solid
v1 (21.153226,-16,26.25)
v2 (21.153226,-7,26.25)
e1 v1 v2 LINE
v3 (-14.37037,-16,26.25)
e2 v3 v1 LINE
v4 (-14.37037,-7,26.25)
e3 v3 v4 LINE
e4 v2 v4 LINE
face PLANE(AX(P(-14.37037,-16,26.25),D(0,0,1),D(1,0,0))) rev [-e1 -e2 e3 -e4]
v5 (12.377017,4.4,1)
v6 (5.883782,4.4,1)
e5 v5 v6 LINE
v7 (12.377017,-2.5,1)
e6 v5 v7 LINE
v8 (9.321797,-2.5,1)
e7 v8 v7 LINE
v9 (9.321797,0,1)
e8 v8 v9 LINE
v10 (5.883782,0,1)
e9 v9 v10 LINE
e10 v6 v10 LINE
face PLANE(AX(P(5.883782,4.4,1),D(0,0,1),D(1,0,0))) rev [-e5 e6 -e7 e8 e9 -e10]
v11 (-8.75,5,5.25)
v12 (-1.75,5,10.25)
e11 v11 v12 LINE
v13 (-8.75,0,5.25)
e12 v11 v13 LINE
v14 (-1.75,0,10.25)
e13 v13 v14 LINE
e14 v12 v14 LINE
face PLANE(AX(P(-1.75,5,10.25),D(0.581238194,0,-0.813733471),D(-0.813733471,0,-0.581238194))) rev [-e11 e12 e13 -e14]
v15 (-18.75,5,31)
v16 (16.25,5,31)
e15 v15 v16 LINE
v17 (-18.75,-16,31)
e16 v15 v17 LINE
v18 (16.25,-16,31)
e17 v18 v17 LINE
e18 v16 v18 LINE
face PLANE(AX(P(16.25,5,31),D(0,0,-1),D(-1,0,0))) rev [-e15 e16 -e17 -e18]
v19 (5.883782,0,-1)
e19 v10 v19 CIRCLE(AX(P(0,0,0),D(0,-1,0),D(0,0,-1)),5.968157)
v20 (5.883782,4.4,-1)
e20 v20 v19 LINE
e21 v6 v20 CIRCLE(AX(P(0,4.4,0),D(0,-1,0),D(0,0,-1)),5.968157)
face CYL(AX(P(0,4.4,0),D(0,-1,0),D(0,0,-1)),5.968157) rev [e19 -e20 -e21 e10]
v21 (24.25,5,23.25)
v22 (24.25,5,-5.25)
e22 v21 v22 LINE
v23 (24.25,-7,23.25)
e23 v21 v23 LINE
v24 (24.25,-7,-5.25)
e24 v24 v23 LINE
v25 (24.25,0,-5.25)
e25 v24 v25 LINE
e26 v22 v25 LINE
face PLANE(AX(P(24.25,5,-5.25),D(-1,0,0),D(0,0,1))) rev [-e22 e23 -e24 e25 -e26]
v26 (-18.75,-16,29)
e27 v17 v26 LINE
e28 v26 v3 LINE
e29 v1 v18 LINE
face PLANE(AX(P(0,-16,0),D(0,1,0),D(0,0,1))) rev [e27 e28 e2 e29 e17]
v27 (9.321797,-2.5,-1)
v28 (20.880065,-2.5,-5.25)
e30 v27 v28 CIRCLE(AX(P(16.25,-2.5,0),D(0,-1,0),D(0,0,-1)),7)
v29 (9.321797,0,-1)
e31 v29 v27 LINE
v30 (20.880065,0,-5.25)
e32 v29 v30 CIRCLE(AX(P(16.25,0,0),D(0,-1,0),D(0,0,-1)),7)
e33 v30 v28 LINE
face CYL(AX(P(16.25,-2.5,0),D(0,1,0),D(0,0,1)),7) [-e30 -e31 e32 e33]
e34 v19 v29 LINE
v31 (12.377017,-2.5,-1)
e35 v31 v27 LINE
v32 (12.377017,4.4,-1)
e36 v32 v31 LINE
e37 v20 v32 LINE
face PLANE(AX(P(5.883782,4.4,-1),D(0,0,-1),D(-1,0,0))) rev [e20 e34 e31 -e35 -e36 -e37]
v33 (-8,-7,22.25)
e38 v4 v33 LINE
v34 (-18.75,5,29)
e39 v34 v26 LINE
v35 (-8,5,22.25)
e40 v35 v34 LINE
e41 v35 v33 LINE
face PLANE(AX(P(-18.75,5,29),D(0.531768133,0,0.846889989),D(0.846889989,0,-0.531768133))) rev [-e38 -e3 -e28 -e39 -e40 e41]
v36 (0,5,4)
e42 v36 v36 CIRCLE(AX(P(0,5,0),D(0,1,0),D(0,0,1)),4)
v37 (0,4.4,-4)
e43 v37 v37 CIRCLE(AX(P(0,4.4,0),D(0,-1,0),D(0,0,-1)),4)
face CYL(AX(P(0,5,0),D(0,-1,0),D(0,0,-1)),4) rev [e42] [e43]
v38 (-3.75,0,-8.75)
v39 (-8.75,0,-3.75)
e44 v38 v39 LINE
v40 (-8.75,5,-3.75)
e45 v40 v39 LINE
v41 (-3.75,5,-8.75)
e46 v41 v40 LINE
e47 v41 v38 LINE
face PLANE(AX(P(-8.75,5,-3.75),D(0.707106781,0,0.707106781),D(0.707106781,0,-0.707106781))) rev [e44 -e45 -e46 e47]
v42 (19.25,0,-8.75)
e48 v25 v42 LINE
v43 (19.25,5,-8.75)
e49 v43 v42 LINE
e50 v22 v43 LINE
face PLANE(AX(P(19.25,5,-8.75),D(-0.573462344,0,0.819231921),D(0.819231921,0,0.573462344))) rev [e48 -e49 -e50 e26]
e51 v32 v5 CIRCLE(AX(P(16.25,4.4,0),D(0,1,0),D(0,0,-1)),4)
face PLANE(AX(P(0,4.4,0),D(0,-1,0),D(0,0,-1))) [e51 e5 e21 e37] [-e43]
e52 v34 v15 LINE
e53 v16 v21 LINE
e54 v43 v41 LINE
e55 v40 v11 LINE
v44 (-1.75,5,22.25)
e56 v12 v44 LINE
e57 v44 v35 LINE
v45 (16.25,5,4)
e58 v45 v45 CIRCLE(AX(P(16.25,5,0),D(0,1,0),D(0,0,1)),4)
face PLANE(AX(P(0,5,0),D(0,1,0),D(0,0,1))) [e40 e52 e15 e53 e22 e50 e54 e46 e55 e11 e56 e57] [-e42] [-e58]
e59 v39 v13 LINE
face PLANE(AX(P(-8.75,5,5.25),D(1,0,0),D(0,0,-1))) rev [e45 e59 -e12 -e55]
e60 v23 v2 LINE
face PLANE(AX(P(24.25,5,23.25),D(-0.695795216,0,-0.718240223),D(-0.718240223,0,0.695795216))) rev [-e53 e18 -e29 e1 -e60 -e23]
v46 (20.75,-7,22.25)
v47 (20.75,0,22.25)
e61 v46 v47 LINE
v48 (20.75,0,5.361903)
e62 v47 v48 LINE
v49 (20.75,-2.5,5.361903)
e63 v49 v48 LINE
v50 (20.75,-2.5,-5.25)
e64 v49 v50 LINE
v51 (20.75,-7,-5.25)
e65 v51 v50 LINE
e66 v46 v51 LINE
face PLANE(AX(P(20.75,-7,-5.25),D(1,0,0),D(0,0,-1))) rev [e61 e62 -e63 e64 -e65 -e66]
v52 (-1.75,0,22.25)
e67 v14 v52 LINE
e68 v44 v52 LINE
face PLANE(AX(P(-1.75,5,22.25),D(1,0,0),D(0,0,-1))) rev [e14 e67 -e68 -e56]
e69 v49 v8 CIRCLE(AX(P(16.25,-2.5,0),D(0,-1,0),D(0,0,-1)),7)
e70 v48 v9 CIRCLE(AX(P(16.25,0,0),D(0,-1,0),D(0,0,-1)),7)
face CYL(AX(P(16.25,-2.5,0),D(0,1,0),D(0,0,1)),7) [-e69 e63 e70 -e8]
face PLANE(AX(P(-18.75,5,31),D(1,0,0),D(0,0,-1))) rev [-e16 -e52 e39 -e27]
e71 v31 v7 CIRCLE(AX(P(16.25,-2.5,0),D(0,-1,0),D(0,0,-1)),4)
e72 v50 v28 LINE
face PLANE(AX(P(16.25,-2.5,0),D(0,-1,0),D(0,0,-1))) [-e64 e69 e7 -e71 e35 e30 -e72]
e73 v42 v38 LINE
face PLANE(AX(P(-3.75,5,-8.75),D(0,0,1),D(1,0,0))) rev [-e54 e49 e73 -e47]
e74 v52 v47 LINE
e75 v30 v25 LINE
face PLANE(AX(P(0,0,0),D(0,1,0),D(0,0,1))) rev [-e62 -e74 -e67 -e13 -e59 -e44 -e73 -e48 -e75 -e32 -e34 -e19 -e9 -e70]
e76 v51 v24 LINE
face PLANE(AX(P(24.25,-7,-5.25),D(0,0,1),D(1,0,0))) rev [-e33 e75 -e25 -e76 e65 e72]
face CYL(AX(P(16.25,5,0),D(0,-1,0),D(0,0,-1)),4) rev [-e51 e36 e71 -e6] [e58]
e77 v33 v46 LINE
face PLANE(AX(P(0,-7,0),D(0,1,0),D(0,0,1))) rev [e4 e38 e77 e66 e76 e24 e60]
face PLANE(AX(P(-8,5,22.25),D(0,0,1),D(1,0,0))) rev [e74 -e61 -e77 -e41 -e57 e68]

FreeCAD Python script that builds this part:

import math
import FreeCAD as App
import Part
import Sketcher
from FreeCAD import Vector
Q = App.Units.Quantity

doc = App.newDocument("Part")
body = doc.addObject("PartDesign::Body", "Body")

# Sketch on XZ plane
sketch1 = body.newObject("Sketcher::SketchObject", "Sketch")
sketch1.AttachmentSupport = (doc.getObject("XZ_Plane"), [""])
sketch1.MapMode = "FlatFace"
sketch1.addGeometry([
    Part.LineSegment(Vector(19.2, -8.8, 0), Vector(-3.8, -8.8, 0)),  # 0
    Part.LineSegment(Vector(-3.8, -8.8, 0), Vector(-8.8, -3.8, 0)),  # 1
    Part.LineSegment(Vector(-8.8, -3.8, 0), Vector(-8.8, 5.2, 0)),  # 2
    Part.LineSegment(Vector(-8.8, 5.2, 0), Vector(-1.8, 10.2, 0)),  # 3
    Part.LineSegment(Vector(-1.8, 10.2, 0), Vector(-1.8, 22.2, 0)),  # 4
    Part.LineSegment(Vector(-1.8, 22.2, 0), Vector(-8, 22.2, 0)),  # 5
    Part.LineSegment(Vector(-8, 22.2, 0), Vector(-18.8, 29, 0)),  # 6
    Part.LineSegment(Vector(-18.8, 29, 0), Vector(-18.8, 31, 0)),  # 7
    Part.LineSegment(Vector(-18.8, 31, 0), Vector(16.2, 31, 0)),  # 8
    Part.LineSegment(Vector(16.2, 31, 0), Vector(24.2, 23.2, 0)),  # 9
    Part.LineSegment(Vector(24.2, 23.2, 0), Vector(24.2, -5.2, 0)),  # 10
    Part.LineSegment(Vector(24.2, -5.2, 0), Vector(19.2, -8.8, 0)),  # 11
    Part.Circle(Vector(16.2, 0, 0), Vector(0, 0, 1), 4),  # 12
    Part.Circle(Vector(0, 0, 0), Vector(0, 0, 1), 4),  # 13
], False)
sketch1.addConstraint([
    Sketcher.Constraint("Coincident", 0, 2, 1, 1),
    Sketcher.Constraint("Coincident", 1, 2, 2, 1),
    Sketcher.Constraint("Coincident", 2, 2, 3, 1),
    Sketcher.Constraint("Coincident", 3, 2, 4, 1),
    Sketcher.Constraint("Coincident", 4, 2, 5, 1),
    Sketcher.Constraint("Coincident", 5, 2, 6, 1),
    Sketcher.Constraint("Coincident", 6, 2, 7, 1),
    Sketcher.Constraint("Coincident", 7, 2, 8, 1),
    Sketcher.Constraint("Coincident", 8, 2, 9, 1),
    Sketcher.Constraint("Coincident", 9, 2, 10, 1),
    Sketcher.Constraint("Coincident", 10, 2, 11, 1),
    Sketcher.Constraint("Coincident", 11, 2, 0, 1),
    Sketcher.Constraint("Horizontal", 0),
    Sketcher.Constraint("Vertical", 2),
    Sketcher.Constraint("Vertical", 4),
    Sketcher.Constraint("Horizontal", 5),
    Sketcher.Constraint("Vertical", 7),
    Sketcher.Constraint("Horizontal", 8),
    Sketcher.Constraint("Vertical", 10),
    Sketcher.Constraint("Coincident", 13, 3, -1, 1),
    Sketcher.Constraint("Equal", 12, 13),
    Sketcher.Constraint("PointOnObject", 12, 3, -1),
    Sketcher.Constraint("Vertical", 12, 3, 8, 2),
    Sketcher.Constraint("Diameter", 12, 8.0),
    Sketcher.Constraint("DistanceX", 0, 2, 0, 1, 23.0),
    Sketcher.Constraint("DistanceX", 8, 1, 8, 2, 35.0),
    Sketcher.Constraint("DistanceY", 2, 1, 2, 2, 9.0),
    Sketcher.Constraint("DistanceY", 4, 1, 4, 2, 12.0),
    Sketcher.Constraint("DistanceY", 7, 1, 7, 2, 2.0),
    Sketcher.Constraint("Angle", 1, Q("135 deg")),
    Sketcher.Constraint("DistanceY", 10, 2, 10, 1, 28.5),
    Sketcher.Constraint("DistanceX", 5, 2, -1, 1, 8.0),
    Sketcher.Constraint("DistanceY", -1, 1, 6, 2, 29.0),
    Sketcher.Constraint("DistanceX", 0, 2, 12, 3, 20.0),
    Sketcher.Constraint("DistanceX", 1, 2, 0, 2, 5.0),
    Sketcher.Constraint("DistanceX", 2, 2, 3, 2, 7.0),
    Sketcher.Constraint("DistanceY", 2, 2, 3, 2, 5.0),
    Sketcher.Constraint("DistanceX", 8, 2, 9, 2, 8.0),
    Sketcher.Constraint("DistanceY", 4, 2, 9, 2, 1.0),
    Sketcher.Constraint("DistanceX", 5, 2, 5, 1, 6.25),
    Sketcher.Constraint("DistanceY", 0, 2, -1, 1, 8.75),
])
pad1 = body.newObject("PartDesign::Pad", "Pad")
pad1.Profile = sketch1
pad1.Length = 5
pad1.Reversed = True

# Sketch on XZ plane
sketch2 = body.newObject("Sketcher::SketchObject", "Sketch001")
sketch2.AttachmentSupport = (doc.getObject("XZ_Plane"), [""])
sketch2.MapMode = "FlatFace"
sketch2.addGeometry([
    Part.LineSegment(Vector(24.2, -5.2, 0), Vector(24.2, 23.2, 0)),  # 0
    Part.LineSegment(Vector(24.2, 23.2, 0), Vector(21.2, 26.2, 0)),  # 1
    Part.LineSegment(Vector(21.2, 26.2, 0), Vector(-14.4, 26.2, 0)),  # 2
    Part.LineSegment(Vector(-14.4, 26.2, 0), Vector(-8, 22.2, 0)),  # 3
    Part.LineSegment(Vector(-8, 22.2, 0), Vector(20.8, 22.2, 0)),  # 4
    Part.LineSegment(Vector(20.8, 22.2, 0), Vector(20.8, -5.2, 0)),  # 5
    Part.LineSegment(Vector(20.8, -5.2, 0), Vector(24.2, -5.2, 0)),  # 6
], False)
sketch2.addConstraint([
    Sketcher.Constraint("Coincident", 0, 2, 1, 1),
    Sketcher.Constraint("Coincident", 1, 2, 2, 1),
    Sketcher.Constraint("Coincident", 2, 2, 3, 1),
    Sketcher.Constraint("Coincident", 3, 2, 4, 1),
    Sketcher.Constraint("Coincident", 4, 2, 5, 1),
    Sketcher.Constraint("Coincident", 5, 2, 6, 1),
    Sketcher.Constraint("Coincident", 6, 2, 0, 1),
    Sketcher.Constraint("Vertical", 0),
    Sketcher.Constraint("Horizontal", 2),
    Sketcher.Constraint("Horizontal", 4),
    Sketcher.Constraint("Vertical", 5),
    Sketcher.Constraint("Horizontal", 6),
    Sketcher.Constraint("DistanceX", 6, 1, 6, 2, 3.5),
    Sketcher.Constraint("DistanceY", 0, 1, 0, 2, 28.5),
    Sketcher.Constraint("DistanceY", 5, 2, 5, 1, 27.5),
    Sketcher.Constraint("DistanceX", 3, 2, -1, 1, 8.0),
    Sketcher.Constraint("DistanceY", 0, 2, 1, 2, 3.0),
    Sketcher.Constraint("DistanceX", 4, 1, 4, 2, 28.75),
    Sketcher.Constraint("DistanceY", -1, 1, 0, 2, 23.25),
    Sketcher.Constraint("DistanceX", 2, 2, 2, 1, 35.523596),
    Sketcher.Constraint("DistanceX", 2, 2, -1, 1, 14.37037),
])
pad2 = body.newObject("PartDesign::Pad", "Pad001")
pad2.Profile = sketch2
pad2.Length = 7

# Sketch on XZ plane
sketch3 = body.newObject("Sketcher::SketchObject", "Sketch002")
sketch3.AttachmentSupport = (doc.getObject("XZ_Plane"), [""])
sketch3.MapMode = "FlatFace"
sketch3.addGeometry([
    Part.LineSegment(Vector(-14.4, 26.2, 0), Vector(21.2, 26.2, 0)),  # 0
    Part.LineSegment(Vector(21.2, 26.2, 0), Vector(16.2, 31, 0)),  # 1
    Part.LineSegment(Vector(16.2, 31, 0), Vector(-18.8, 31, 0)),  # 2
    Part.LineSegment(Vector(-18.8, 31, 0), Vector(-18.8, 29, 0)),  # 3
    Part.LineSegment(Vector(-18.8, 29, 0), Vector(-14.4, 26.2, 0)),  # 4
], False)
sketch3.addConstraint([
    Sketcher.Constraint("Coincident", 0, 2, 1, 1),
    Sketcher.Constraint("Coincident", 1, 2, 2, 1),
    Sketcher.Constraint("Coincident", 2, 2, 3, 1),
    Sketcher.Constraint("Coincident", 3, 2, 4, 1),
    Sketcher.Constraint("Coincident", 4, 2, 0, 1),
    Sketcher.Constraint("Horizontal", 0),
    Sketcher.Constraint("Horizontal", 2),
    Sketcher.Constraint("Vertical", 3),
    Sketcher.Constraint("DistanceX", 2, 2, 2, 1, 35.0),
    Sketcher.Constraint("DistanceY", 3, 2, 3, 1, 2.0),
    Sketcher.Constraint("DistanceY", -1, 1, 1, 2, 31.0),
    Sketcher.Constraint("DistanceY", -1, 1, 0, 2, 26.25),
    Sketcher.Constraint("DistanceX", -1, 1, 1, 2, 16.25),
    Sketcher.Constraint("Distance", 1, 6.826721),
    Sketcher.Constraint("DistanceX", 0, 1, 0, 2, 35.523596),
])
pad3 = body.newObject("PartDesign::Pad", "Pad002")
pad3.Profile = sketch3
pad3.Length = 16

# Sketch on XZ plane
sketch4 = body.newObject("Sketcher::SketchObject", "Sketch003")
sketch4.AttachmentSupport = (doc.getObject("XZ_Plane"), [""])
sketch4.MapMode = "FlatFace"
sketch4.AttachmentOffset = App.Placement(Vector(0, 0, 2.5), App.Rotation())
sketch4.addGeometry([
    Part.Circle(Vector(16.2, 0, 0), Vector(0, 0, 1), 7),
    Part.Circle(Vector(16.2, 0, 0), Vector(0, 0, 1), 4),
], False)
sketch4.addConstraint([
    Sketcher.Constraint("Coincident", 1, 3, 0, 3),
    Sketcher.Constraint("PointOnObject", 0, 3, -1),
    Sketcher.Constraint("Diameter", 0, 14.0),
    Sketcher.Constraint("Diameter", 1, 8.0),
    Sketcher.Constraint("DistanceX", -1, 1, 0, 3, 16.25),
])
pad4 = body.newObject("PartDesign::Pad", "Pad003")
pad4.Profile = sketch4
pad4.Length = 2.5
pad4.Reversed = True

# Sketch on XZ plane
sketch5 = body.newObject("Sketcher::SketchObject", "Sketch004")
sketch5.AttachmentSupport = (doc.getObject("XZ_Plane"), [""])
sketch5.MapMode = "FlatFace"
sketch5.addGeometry([
    Part.LineSegment(Vector(5.9, -1, 0), Vector(12.4, -1, 0)),
    Part.ArcOfCircle(Part.Circle(Vector(16.2, 0, 0), Vector(0, 0, 1), 4), math.radians(166), math.radians(194)),
    Part.LineSegment(Vector(12.4, 1, 0), Vector(5.9, 1, 0)),
    Part.ArcOfCircle(Part.Circle(Vector(0, 0, 0), Vector(0, 0, 1), 6), math.radians(10), math.radians(350)),
], False)
sketch5.addConstraint([
    Sketcher.Constraint("Coincident", 0, 2, 1, 2),
    Sketcher.Constraint("Coincident", 1, 1, 2, 1),
    Sketcher.Constraint("Coincident", 2, 2, 3, 1),
    Sketcher.Constraint("Coincident", 3, 2, 0, 1),
    Sketcher.Constraint("Horizontal", 0),
    Sketcher.Constraint("Horizontal", 2),
    Sketcher.Constraint("Coincident", 3, 3, -1, 1),
    Sketcher.Constraint("Symmetric", 0, 2, 1, 1, -1),
    Sketcher.Constraint("Radius", 1, 4.0),
    Sketcher.Constraint("DistanceY", 0, 2, -1, 1, 1.0),
    Sketcher.Constraint("DistanceX", -1, 1, 1, 3, 16.25),
    Sketcher.Constraint("Radius", 3, 5.968157),
])
pocket1 = body.newObject("PartDesign::Pocket", "Pocket")
pocket1.Profile = sketch5
pocket1.Length = 4.4

# Sketch on XZ plane
sketch6 = body.newObject("Sketcher::SketchObject", "Sketch005")
sketch6.AttachmentSupport = (doc.getObject("XZ_Plane"), [""])
sketch6.MapMode = "FlatFace"
sketch6.AttachmentOffset = App.Placement(Vector(0, 0, -4.4), App.Rotation())
sketch6.addGeometry([
    Part.LineSegment(Vector(5.9, -1, 0), Vector(12.4, -1, 0)),
    Part.ArcOfCircle(Part.Circle(Vector(16.2, 0, 0), Vector(0, 0, 1), 4), math.radians(166), math.radians(194)),
    Part.LineSegment(Vector(12.4, 1, 0), Vector(5.9, 1, 0)),
    Part.ArcOfCircle(Part.Circle(Vector(0, 0, 0), Vector(0, 0, 1), 6), math.radians(10), math.radians(350)),
], False)
sketch6.addConstraint([
    Sketcher.Constraint("Coincident", 0, 2, 1, 2),
    Sketcher.Constraint("Coincident", 1, 1, 2, 1),
    Sketcher.Constraint("Coincident", 2, 2, 3, 1),
    Sketcher.Constraint("Coincident", 3, 2, 0, 1),
    Sketcher.Constraint("Horizontal", 0),
    Sketcher.Constraint("Horizontal", 2),
    Sketcher.Constraint("Coincident", 3, 3, -1, 1),
    Sketcher.Constraint("Symmetric", 0, 2, 1, 1, -1),
    Sketcher.Constraint("Radius", 1, 4.0),
    Sketcher.Constraint("DistanceY", 0, 2, -1, 1, 1.0),
    Sketcher.Constraint("DistanceX", -1, 1, 1, 3, 16.25),
    Sketcher.Constraint("Radius", 3, 5.968157),
])
pocket2 = body.newObject("PartDesign::Pocket", "Pocket001")
pocket2.Profile = sketch6
pocket2.Type = "ThroughAll"
pocket2.Reversed = True

doc.recompute()
